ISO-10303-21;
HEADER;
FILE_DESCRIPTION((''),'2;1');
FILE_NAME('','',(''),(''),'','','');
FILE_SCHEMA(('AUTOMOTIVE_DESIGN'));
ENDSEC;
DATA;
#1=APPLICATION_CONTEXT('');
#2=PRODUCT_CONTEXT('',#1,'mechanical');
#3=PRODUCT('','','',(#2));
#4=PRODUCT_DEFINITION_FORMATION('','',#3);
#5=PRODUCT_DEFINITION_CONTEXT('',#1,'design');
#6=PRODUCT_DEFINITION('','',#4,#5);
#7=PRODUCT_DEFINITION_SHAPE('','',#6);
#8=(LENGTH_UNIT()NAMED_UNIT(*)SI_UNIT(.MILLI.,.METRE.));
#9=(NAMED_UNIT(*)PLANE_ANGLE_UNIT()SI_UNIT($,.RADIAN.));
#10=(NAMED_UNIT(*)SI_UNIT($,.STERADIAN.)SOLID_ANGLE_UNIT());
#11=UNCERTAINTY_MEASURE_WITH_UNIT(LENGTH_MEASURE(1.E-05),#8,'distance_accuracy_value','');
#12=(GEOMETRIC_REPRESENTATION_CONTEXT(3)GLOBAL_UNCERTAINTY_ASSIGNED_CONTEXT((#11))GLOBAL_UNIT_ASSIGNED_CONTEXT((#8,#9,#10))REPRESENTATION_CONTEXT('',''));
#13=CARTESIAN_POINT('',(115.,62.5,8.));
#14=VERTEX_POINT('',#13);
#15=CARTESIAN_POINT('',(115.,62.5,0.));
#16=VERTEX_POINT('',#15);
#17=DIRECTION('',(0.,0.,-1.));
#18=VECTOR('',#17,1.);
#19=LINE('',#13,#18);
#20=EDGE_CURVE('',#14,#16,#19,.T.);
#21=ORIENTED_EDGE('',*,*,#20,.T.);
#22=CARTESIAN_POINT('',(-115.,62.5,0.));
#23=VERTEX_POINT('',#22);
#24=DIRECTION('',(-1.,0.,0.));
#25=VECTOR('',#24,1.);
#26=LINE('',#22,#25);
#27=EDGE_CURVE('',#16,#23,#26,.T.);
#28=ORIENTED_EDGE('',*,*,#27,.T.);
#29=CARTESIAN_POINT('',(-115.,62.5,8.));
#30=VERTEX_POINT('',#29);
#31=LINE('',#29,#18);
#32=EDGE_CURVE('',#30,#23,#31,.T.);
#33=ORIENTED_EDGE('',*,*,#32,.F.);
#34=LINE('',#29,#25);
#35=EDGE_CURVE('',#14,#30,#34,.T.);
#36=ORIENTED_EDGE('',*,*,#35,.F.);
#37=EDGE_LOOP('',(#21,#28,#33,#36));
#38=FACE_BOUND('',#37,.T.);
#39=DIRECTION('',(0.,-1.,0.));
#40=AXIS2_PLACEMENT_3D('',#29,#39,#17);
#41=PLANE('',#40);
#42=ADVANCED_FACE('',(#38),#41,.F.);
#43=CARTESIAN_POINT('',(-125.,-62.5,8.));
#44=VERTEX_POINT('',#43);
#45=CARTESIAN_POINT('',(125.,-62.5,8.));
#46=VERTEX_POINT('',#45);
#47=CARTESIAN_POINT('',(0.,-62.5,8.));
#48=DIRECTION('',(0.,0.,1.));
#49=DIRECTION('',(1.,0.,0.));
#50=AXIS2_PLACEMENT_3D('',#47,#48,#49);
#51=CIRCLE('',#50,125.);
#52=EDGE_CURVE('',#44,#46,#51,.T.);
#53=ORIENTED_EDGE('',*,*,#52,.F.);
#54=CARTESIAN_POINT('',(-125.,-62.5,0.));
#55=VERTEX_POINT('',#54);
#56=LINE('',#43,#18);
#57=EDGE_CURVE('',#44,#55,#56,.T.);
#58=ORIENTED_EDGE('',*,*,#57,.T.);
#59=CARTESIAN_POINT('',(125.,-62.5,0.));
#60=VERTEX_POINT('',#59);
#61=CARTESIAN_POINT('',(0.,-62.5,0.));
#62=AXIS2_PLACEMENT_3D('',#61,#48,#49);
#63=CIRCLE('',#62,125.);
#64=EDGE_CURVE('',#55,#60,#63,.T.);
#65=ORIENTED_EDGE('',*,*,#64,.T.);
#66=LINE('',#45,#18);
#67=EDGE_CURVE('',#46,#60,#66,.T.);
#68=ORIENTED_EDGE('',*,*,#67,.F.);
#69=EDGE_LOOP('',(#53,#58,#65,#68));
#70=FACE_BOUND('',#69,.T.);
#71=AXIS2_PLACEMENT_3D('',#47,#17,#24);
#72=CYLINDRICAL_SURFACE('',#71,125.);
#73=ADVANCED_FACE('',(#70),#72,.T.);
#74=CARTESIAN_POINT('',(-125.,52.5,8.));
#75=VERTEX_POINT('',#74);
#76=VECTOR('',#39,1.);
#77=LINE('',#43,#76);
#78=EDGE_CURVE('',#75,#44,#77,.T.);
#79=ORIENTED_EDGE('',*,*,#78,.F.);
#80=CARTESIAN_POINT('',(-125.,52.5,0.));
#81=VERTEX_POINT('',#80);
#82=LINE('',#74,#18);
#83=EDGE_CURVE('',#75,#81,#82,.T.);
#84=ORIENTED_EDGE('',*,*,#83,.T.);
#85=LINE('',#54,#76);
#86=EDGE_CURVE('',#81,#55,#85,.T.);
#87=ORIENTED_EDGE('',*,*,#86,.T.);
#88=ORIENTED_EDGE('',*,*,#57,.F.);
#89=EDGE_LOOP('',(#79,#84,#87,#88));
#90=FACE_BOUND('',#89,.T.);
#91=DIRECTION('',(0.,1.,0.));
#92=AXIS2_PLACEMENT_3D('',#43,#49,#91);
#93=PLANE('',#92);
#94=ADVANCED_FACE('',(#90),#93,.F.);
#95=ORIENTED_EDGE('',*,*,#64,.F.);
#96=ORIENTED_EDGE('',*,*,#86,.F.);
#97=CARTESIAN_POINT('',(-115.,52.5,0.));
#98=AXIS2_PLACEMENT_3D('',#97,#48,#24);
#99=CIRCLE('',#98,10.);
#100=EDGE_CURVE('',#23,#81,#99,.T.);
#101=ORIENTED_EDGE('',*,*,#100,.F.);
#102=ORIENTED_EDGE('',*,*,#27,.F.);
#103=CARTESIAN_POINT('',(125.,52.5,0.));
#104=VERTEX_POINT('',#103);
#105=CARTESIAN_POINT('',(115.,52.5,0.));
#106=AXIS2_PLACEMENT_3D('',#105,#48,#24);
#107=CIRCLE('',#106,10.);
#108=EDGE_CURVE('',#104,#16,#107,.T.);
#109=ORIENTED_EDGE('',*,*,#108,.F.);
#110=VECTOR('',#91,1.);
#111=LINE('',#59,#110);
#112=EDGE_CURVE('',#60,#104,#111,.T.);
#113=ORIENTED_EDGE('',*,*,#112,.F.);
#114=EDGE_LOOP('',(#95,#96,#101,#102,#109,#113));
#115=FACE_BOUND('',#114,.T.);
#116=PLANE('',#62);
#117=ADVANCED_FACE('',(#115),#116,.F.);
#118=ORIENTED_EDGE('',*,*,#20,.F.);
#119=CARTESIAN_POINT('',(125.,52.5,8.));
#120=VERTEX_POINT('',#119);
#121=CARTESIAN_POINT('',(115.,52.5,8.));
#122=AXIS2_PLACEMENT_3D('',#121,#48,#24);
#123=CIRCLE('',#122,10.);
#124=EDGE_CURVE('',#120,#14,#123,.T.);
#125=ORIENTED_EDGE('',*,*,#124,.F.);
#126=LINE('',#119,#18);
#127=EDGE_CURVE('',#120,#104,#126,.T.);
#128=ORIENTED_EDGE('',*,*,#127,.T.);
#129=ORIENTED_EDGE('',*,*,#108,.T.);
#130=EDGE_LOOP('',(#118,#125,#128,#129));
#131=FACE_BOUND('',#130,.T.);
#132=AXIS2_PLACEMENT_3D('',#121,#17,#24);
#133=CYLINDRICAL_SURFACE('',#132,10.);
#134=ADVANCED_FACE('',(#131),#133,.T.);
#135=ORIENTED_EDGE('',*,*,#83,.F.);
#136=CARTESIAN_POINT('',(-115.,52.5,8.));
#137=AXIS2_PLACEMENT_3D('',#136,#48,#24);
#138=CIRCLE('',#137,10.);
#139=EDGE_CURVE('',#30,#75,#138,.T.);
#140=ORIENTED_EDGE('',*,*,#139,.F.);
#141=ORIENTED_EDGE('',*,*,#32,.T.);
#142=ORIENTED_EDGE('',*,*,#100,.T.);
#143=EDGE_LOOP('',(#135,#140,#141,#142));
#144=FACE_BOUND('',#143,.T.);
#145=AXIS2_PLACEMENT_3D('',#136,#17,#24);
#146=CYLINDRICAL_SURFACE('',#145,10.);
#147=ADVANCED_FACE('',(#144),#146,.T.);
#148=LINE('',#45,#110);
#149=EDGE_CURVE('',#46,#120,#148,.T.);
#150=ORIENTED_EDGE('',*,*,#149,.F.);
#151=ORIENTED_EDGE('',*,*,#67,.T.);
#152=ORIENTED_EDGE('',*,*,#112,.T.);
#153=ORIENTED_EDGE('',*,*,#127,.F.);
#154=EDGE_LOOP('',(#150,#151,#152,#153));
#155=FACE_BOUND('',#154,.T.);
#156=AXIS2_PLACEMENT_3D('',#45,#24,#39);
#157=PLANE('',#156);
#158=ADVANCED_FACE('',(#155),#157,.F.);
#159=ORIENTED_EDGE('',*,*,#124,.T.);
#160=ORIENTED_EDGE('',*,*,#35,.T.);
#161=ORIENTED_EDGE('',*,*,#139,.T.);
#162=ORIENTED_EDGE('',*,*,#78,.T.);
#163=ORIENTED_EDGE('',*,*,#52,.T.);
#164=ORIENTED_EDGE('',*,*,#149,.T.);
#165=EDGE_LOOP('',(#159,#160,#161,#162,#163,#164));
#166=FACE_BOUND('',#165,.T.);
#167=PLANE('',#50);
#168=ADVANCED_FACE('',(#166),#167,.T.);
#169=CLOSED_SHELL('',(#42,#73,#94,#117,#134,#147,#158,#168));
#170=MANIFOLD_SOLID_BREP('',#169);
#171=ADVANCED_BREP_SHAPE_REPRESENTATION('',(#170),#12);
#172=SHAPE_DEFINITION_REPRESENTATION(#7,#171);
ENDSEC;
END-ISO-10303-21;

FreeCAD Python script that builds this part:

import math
import FreeCAD as App
import Part
import Sketcher
Q = App.Units.Quantity

doc = App.newDocument("Part")
body = doc.addObject("PartDesign::Body", "Body")

sketch1 = body.newObject("Sketcher::SketchObject", "Sketch")
sketch1.AttachmentSupport = (doc.getObject("XY_Plane"), [""])
sketch1.MapMode = "FlatFace"
sketch1.addGeometry([
    Part.LineSegment(App.Vector(-125, 52, 0), App.Vector(-125, -62, 0)),
    Part.ArcOfCircle(Part.Circle(App.Vector(0, -62, 0), App.Vector(0, 0, 1), 125), math.radians(180), math.radians(360)),
    Part.LineSegment(App.Vector(125, -62, 0), App.Vector(125, 52, 0)),
    Part.ArcOfCircle(Part.Circle(App.Vector(115, 52, 0), App.Vector(0, 0, 1), 10), math.radians(0), math.radians(90)),
    Part.LineSegment(App.Vector(115, 62, 0), App.Vector(-115, 62, 0)),
    Part.ArcOfCircle(Part.Circle(App.Vector(-115, 52, 0), App.Vector(0, 0, 1), 10), math.radians(90), math.radians(180)),
], False)
sketch1.addConstraint([
    Sketcher.Constraint("Tangent", 0, 2, 1, 1),
    Sketcher.Constraint("Tangent", 1, 2, 2, 1),
    Sketcher.Constraint("Tangent", 2, 2, 3, 1),
    Sketcher.Constraint("Tangent", 3, 2, 4, 1),
    Sketcher.Constraint("Tangent", 4, 2, 5, 1),
    Sketcher.Constraint("Tangent", 5, 2, 0, 1),
    Sketcher.Constraint("Vertical", 0),
    Sketcher.Constraint("Vertical", 2),
    Sketcher.Constraint("Horizontal", 4),
    Sketcher.Constraint("Equal", 3, 5),
    Sketcher.Constraint("PointOnObject", 1, 3, -2),
    Sketcher.Constraint("Radius", 1, Q("125 mm")),
    Sketcher.Constraint("Radius", 3, Q("10 mm")),
    Sketcher.Constraint("DistanceY", 0, 2, 0, 1, Q("115 mm")),
    Sketcher.Constraint("DistanceY", 1, 3, -1, 1, Q("62.5 mm")),
])
pad1 = body.newObject("PartDesign::Pad", "Pad")
pad1.Profile = sketch1
pad1.Length = 8

doc.recompute()
